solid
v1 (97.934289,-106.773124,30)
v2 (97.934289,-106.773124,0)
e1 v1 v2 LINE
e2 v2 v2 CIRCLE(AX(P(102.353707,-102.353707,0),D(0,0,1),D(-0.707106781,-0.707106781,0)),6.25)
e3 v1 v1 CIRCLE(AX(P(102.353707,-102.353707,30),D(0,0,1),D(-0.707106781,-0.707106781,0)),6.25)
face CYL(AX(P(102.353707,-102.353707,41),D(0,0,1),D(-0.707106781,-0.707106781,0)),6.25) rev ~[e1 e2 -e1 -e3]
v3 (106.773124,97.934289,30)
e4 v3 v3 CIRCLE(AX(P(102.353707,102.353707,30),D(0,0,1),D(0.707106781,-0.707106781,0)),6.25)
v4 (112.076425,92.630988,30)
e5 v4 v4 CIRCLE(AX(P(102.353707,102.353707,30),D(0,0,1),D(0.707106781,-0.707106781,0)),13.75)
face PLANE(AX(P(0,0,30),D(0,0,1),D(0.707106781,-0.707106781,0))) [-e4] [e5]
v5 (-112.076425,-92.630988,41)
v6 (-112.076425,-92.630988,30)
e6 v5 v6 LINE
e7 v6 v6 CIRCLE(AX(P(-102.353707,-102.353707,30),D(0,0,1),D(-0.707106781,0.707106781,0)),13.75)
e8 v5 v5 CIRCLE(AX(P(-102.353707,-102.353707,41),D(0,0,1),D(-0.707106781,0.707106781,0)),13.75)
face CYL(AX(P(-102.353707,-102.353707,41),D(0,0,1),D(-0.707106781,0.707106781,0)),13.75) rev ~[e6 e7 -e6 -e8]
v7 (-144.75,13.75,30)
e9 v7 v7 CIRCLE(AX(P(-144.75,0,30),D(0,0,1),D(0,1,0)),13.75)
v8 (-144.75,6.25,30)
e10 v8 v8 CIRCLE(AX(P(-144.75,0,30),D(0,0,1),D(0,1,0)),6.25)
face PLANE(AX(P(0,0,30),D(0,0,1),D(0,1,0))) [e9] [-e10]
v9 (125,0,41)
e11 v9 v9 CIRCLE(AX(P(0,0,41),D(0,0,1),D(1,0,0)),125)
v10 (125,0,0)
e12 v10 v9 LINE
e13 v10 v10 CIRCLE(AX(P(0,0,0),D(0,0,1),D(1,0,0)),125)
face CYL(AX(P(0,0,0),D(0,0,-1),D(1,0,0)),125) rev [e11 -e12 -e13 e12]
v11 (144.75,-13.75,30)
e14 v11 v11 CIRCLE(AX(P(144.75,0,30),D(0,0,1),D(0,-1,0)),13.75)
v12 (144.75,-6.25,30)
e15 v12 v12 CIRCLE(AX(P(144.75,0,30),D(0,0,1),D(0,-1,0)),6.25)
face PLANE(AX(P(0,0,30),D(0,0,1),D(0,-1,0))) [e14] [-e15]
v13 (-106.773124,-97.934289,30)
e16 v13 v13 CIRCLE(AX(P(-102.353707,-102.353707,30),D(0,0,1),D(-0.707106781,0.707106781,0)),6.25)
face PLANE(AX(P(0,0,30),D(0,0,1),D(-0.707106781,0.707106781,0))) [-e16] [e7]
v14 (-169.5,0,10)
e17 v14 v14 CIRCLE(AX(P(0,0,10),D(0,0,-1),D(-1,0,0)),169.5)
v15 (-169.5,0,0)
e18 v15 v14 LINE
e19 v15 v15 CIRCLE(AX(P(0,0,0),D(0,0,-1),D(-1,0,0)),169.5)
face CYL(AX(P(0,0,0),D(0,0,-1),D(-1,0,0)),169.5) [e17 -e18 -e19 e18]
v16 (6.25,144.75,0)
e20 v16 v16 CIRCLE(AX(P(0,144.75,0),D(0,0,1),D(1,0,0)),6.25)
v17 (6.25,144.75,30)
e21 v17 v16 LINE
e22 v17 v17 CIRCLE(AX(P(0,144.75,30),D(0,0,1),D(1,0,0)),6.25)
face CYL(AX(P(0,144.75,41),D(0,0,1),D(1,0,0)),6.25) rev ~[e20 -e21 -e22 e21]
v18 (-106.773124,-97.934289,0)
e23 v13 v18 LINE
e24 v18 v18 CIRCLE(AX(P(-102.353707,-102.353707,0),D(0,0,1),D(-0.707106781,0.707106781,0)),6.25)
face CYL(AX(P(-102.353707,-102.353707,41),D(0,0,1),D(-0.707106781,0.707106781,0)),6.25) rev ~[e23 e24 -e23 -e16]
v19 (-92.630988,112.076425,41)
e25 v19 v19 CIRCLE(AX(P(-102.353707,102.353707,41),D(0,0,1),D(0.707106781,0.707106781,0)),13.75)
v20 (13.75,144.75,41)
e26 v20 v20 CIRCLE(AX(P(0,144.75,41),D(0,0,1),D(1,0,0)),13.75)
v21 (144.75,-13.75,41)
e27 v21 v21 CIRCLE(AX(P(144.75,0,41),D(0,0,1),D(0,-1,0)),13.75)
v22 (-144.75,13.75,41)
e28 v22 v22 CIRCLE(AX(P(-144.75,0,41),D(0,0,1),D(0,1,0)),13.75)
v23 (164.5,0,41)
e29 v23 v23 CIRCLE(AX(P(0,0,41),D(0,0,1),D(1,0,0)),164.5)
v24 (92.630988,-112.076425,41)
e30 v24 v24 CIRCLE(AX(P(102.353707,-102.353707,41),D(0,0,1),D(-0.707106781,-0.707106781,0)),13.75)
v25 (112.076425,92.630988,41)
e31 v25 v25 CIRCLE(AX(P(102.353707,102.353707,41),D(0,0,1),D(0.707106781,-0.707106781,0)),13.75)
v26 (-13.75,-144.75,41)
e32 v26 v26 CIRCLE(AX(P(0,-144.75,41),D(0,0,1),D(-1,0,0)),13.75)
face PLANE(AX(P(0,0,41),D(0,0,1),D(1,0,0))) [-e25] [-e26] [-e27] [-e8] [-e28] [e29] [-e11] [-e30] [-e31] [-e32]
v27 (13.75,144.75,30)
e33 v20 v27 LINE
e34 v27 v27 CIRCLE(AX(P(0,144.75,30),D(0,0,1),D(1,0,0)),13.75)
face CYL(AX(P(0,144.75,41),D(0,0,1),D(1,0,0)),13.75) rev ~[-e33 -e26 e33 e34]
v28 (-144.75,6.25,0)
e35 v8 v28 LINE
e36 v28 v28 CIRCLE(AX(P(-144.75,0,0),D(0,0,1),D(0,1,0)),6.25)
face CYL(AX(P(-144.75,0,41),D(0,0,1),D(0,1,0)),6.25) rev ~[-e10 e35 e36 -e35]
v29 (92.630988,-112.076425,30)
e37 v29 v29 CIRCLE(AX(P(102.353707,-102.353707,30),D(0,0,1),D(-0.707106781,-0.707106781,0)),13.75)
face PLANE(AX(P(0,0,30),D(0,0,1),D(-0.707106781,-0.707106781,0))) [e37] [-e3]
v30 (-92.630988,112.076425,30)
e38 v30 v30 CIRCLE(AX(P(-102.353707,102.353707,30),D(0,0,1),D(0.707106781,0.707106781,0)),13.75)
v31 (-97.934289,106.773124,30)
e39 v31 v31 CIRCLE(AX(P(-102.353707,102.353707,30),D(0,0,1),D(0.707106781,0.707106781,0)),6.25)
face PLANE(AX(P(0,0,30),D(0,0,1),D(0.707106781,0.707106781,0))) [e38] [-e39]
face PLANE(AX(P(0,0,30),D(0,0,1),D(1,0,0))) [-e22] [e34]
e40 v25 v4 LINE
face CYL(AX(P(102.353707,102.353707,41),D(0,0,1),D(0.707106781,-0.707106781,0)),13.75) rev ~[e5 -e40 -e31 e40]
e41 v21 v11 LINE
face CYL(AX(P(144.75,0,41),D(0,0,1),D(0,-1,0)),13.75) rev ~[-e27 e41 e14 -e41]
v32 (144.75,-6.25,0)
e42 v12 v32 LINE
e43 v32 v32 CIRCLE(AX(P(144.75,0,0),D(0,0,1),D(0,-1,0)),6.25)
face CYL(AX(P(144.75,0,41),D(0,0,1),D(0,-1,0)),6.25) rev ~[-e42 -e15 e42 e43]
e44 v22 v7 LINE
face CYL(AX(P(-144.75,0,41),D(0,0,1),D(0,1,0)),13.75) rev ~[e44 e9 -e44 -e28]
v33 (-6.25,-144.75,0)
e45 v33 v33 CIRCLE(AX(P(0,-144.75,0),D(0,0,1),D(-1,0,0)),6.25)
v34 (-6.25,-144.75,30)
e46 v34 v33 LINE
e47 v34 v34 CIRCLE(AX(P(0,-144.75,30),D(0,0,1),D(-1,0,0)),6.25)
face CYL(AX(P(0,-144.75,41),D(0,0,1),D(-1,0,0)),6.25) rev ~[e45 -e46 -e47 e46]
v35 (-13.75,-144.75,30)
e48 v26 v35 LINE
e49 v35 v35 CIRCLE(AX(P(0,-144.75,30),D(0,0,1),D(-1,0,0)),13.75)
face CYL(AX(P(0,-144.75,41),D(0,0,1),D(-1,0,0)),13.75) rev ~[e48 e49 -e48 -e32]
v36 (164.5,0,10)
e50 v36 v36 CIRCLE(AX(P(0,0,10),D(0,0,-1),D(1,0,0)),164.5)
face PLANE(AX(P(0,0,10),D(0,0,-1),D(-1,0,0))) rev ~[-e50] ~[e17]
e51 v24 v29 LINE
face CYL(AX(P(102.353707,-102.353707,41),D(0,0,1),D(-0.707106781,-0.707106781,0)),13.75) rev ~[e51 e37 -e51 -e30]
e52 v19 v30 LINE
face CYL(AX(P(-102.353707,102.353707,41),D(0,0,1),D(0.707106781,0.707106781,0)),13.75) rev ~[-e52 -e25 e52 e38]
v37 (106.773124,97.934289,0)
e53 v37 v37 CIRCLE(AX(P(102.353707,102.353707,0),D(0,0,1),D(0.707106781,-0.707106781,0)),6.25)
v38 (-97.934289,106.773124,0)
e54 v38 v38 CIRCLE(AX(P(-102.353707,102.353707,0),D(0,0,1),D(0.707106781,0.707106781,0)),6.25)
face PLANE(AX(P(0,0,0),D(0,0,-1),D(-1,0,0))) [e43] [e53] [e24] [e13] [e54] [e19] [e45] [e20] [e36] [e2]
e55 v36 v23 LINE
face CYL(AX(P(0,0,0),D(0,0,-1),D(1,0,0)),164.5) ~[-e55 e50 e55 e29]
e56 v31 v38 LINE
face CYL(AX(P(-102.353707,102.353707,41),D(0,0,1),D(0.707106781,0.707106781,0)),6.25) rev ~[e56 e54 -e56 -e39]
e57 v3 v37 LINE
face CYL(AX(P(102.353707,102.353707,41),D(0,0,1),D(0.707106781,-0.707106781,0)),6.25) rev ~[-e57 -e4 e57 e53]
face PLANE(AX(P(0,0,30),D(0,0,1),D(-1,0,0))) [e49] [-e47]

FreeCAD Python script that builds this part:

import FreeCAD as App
import Part
import Sketcher

V = App.Vector

doc = App.newDocument("Part")
body = doc.addObject("PartDesign::Body", "Body")

# Sketch on XY plane
sketch1 = body.newObject("Sketcher::SketchObject", "Sketch")
sketch1.AttachmentSupport = (doc.getObject("XY_Plane"), [""])
sketch1.MapMode = "FlatFace"
sketch1.addGeometry(Part.Circle(V(0, 0, 0), V(0, 0, 1), 164.5), False)
sketch1.addGeometry(Part.Circle(V(0, 0, 0), V(0, 0, 1), 125), False)
sketch1.addConstraint(Sketcher.Constraint("Coincident", 0, 3, -1, 1))
sketch1.addConstraint(Sketcher.Constraint("Coincident", 1, 3, -1, 1))
sketch1.addConstraint(Sketcher.Constraint("Diameter", 1, 250.0))
sketch1.addConstraint(Sketcher.Constraint("Diameter", 0, 329.0))
pad1 = body.newObject("PartDesign::Pad", "Pad")
pad1.Profile = sketch1
pad1.Length = 41

# Sketch on XY plane
sketch2 = body.newObject("Sketcher::SketchObject", "Sketch001")
sketch2.AttachmentSupport = (doc.getObject("XY_Plane"), [""])
sketch2.MapMode = "FlatFace"
sketch2.AttachmentOffset = App.Placement(V(0, 0, 41), App.Rotation())
sketch2.addGeometry(Part.Circle(V(0, 144.75, 0), V(0, 0, 1), 6.25), False)
sketch2.addConstraint(Sketcher.Constraint("PointOnObject", 0, 3, -2))
sketch2.addConstraint(Sketcher.Constraint("Diameter", 0, 12.5))
sketch2.addConstraint(Sketcher.Constraint("DistanceY", -1, 1, 0, 3, 144.75))
pocket1 = body.newObject("PartDesign::Pocket", "Pocket")
pocket1.Profile = sketch2
pocket1.Type = "ThroughAll"

# Sketch on XY plane
sketch3 = body.newObject("Sketcher::SketchObject", "Sketch002")
sketch3.AttachmentSupport = (doc.getObject("XY_Plane"), [""])
sketch3.MapMode = "FlatFace"
sketch3.AttachmentOffset = App.Placement(V(0, 0, 41), App.Rotation())
sketch3.addGeometry(Part.Circle(V(0, 144.75, 0), V(0, 0, 1), 13.75), False)
sketch3.addGeometry(Part.Circle(V(0, 144.75, 0), V(0, 0, 1), 6.25), False)
sketch3.addConstraint(Sketcher.Constraint("Coincident", 1, 3, 0, 3))
sketch3.addConstraint(Sketcher.Constraint("PointOnObject", 0, 3, -2))
sketch3.addConstraint(Sketcher.Constraint("Diameter", 0, 27.5))
sketch3.addConstraint(Sketcher.Constraint("Diameter", 1, 12.5))
sketch3.addConstraint(Sketcher.Constraint("DistanceY", -1, 1, 0, 3, 144.75))
pocket2 = body.newObject("PartDesign::Pocket", "Pocket001")
pocket2.Profile = sketch3
pocket2.Length = 11
doc.recompute()

polarpattern = body.newObject("PartDesign::PolarPattern", "PolarPattern")
polarpattern.Originals = [pocket1, pocket2]
polarpattern.Axis = (doc.getObject("Z_Axis"), [""])
polarpattern.Angle = 360
polarpattern.Occurrences = 8
body.Tip = polarpattern

# Sketch on XY plane
sketch4 = body.newObject("Sketcher::SketchObject", "Sketch003")
sketch4.AttachmentSupport = (doc.getObject("XY_Plane"), [""])
sketch4.MapMode = "FlatFace"
sketch4.addGeometry(Part.Circle(V(0, 0, 0), V(0, 0, 1), 169.5), False)
sketch4.addGeometry(Part.Circle(V(0, 0, 0), V(0, 0, 1), 164.5), False)
sketch4.addConstraint(Sketcher.Constraint("Coincident", 0, 3, -1, 1))
sketch4.addConstraint(Sketcher.Constraint("Coincident", 1, 3, -1, 1))
sketch4.addConstraint(Sketcher.Constraint("Diameter", 0, 339.0))
sketch4.addConstraint(Sketcher.Constraint("Diameter", 1, 329.0))
pad2 = body.newObject("PartDesign::Pad", "Pad001")
pad2.Profile = sketch4
pad2.Length = 10

doc.recompute()
